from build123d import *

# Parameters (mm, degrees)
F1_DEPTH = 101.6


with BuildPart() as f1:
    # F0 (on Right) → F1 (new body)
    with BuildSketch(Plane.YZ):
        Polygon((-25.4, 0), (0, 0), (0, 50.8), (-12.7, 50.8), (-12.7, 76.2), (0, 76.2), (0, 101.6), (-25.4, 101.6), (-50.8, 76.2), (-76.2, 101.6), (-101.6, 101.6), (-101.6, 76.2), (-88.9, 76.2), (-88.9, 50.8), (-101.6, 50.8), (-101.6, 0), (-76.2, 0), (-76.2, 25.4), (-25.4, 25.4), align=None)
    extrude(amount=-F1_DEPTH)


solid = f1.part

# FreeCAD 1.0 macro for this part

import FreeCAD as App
import Part
import Sketcher
Q = App.Units.Quantity

doc = App.newDocument("Part")
body = doc.addObject("PartDesign::Body", "Body")

# Sketch on YZ plane
sketch1 = body.newObject("Sketcher::SketchObject", "Sketch")
sketch1.AttachmentSupport = (doc.getObject("YZ_Plane"), [""])
sketch1.MapMode = "FlatFace"
sketch1.addGeometry([
    Part.LineSegment(App.Vector(-25, 0, 0), App.Vector(0, 0, 0)),  # 0
    Part.LineSegment(App.Vector(0, 0, 0), App.Vector(0, 51, 0)),  # 1
    Part.LineSegment(App.Vector(0, 51, 0), App.Vector(-13, 51, 0)),  # 2
    Part.LineSegment(App.Vector(-13, 51, 0), App.Vector(-13, 76, 0)),  # 3
    Part.LineSegment(App.Vector(-13, 76, 0), App.Vector(0, 76, 0)),  # 4
    Part.LineSegment(App.Vector(0, 76, 0), App.Vector(0, 102, 0)),  # 5
    Part.LineSegment(App.Vector(0, 102, 0), App.Vector(-25, 102, 0)),  # 6
    Part.LineSegment(App.Vector(-25, 102, 0), App.Vector(-51, 76, 0)),  # 7
    Part.LineSegment(App.Vector(-51, 76, 0), App.Vector(-76, 102, 0)),  # 8
    Part.LineSegment(App.Vector(-76, 102, 0), App.Vector(-102, 102, 0)),  # 9
    Part.LineSegment(App.Vector(-102, 102, 0), App.Vector(-102, 76, 0)),  # 10
    Part.LineSegment(App.Vector(-102, 76, 0), App.Vector(-89, 76, 0)),  # 11
    Part.LineSegment(App.Vector(-89, 76, 0), App.Vector(-89, 51, 0)),  # 12
    Part.LineSegment(App.Vector(-89, 51, 0), App.Vector(-102, 51, 0)),  # 13
    Part.LineSegment(App.Vector(-102, 51, 0), App.Vector(-102, 0, 0)),  # 14
    Part.LineSegment(App.Vector(-102, 0, 0), App.Vector(-76, 0, 0)),  # 15
    Part.LineSegment(App.Vector(-76, 0, 0), App.Vector(-76, 25, 0)),  # 16
    Part.LineSegment(App.Vector(-76, 25, 0), App.Vector(-25, 25, 0)),  # 17
    Part.LineSegment(App.Vector(-25, 25, 0), App.Vector(-25, 0, 0)),  # 18
], False)
sketch1.addConstraint([
    Sketcher.Constraint("Coincident", 0, 2, 1, 1),
    Sketcher.Constraint("Coincident", 1, 2, 2, 1),
    Sketcher.Constraint("Coincident", 2, 2, 3, 1),
    Sketcher.Constraint("Coincident", 3, 2, 4, 1),
    Sketcher.Constraint("Coincident", 4, 2, 5, 1),
    Sketcher.Constraint("Coincident", 5, 2, 6, 1),
    Sketcher.Constraint("Coincident", 6, 2, 7, 1),
    Sketcher.Constraint("Coincident", 7, 2, 8, 1),
    Sketcher.Constraint("Coincident", 8, 2, 9, 1),
    Sketcher.Constraint("Coincident", 9, 2, 10, 1),
    Sketcher.Constraint("Coincident", 10, 2, 11, 1),
    Sketcher.Constraint("Coincident", 11, 2, 12, 1),
    Sketcher.Constraint("Coincident", 12, 2, 13, 1),
    Sketcher.Constraint("Coincident", 13, 2, 14, 1),
    Sketcher.Constraint("Coincident", 14, 2, 15, 1),
    Sketcher.Constraint("Coincident", 15, 2, 16, 1),
    Sketcher.Constraint("Coincident", 16, 2, 17, 1),
    Sketcher.Constraint("Coincident", 17, 2, 18, 1),
    Sketcher.Constraint("Coincident", 18, 2, 0, 1),
    Sketcher.Constraint("Horizontal", 0),
    Sketcher.Constraint("Vertical", 1),
    Sketcher.Constraint("Horizontal", 2),
    Sketcher.Constraint("Vertical", 3),
    Sketcher.Constraint("Horizontal", 4),
    Sketcher.Constraint("Vertical", 5),
    Sketcher.Constraint("Horizontal", 6),
    Sketcher.Constraint("Horizontal", 9),
    Sketcher.Constraint("Vertical", 10),
    Sketcher.Constraint("Horizontal", 11),
    Sketcher.Constraint("Vertical", 12),
    Sketcher.Constraint("Horizontal", 13),
    Sketcher.Constraint("Vertical", 14),
    Sketcher.Constraint("Horizontal", 15),
    Sketcher.Constraint("Vertical", 16),
    Sketcher.Constraint("Horizontal", 17),
    Sketcher.Constraint("Vertical", 18),
    Sketcher.Constraint("Coincident", 0, 2, -1, 1),
    Sketcher.Constraint("PointOnObject", 4, 2, -2),
    Sketcher.Constraint("PointOnObject", 14, 2, -1),
    Sketcher.Constraint("Perpendicular", 7, 8),
    Sketcher.Constraint("Horizontal", 4, 2, 7, 2),
    Sketcher.Constraint("Horizontal", 6, 2, 8, 2),
    Sketcher.Constraint("Horizontal", 7, 2, 10, 2),
    Sketcher.Constraint("Horizontal", 2, 2, 12, 2),
    Sketcher.Constraint("Vertical", 10, 2, 13, 2),
    Sketcher.Constraint("Vertical", 8, 2, 15, 2),
    Sketcher.Constraint("Vertical", 6, 2, 17, 2),
    Sketcher.Constraint("Equal", 6, 9),
    Sketcher.Constraint("Equal", 4, 11),
    Sketcher.Constraint("Equal", 17, 1),
    Sketcher.Constraint("Equal", 15, 3),
    Sketcher.Constraint("Equal", 3, 5),
    Sketcher.Constraint("Equal", 12, 16),
    Sketcher.Constraint("Equal", 7, 8),
    Sketcher.Constraint("DistanceX", 0, 1, 0, 2, Q("1 in")),
    Sketcher.Constraint("DistanceX", 2, 2, 2, 1, Q("0.5 in")),
])
pad1 = body.newObject("PartDesign::Pad", "Pad")
pad1.Profile = sketch1
pad1.Length = Q("4 in")
pad1.Reversed = True

doc.recompute()
